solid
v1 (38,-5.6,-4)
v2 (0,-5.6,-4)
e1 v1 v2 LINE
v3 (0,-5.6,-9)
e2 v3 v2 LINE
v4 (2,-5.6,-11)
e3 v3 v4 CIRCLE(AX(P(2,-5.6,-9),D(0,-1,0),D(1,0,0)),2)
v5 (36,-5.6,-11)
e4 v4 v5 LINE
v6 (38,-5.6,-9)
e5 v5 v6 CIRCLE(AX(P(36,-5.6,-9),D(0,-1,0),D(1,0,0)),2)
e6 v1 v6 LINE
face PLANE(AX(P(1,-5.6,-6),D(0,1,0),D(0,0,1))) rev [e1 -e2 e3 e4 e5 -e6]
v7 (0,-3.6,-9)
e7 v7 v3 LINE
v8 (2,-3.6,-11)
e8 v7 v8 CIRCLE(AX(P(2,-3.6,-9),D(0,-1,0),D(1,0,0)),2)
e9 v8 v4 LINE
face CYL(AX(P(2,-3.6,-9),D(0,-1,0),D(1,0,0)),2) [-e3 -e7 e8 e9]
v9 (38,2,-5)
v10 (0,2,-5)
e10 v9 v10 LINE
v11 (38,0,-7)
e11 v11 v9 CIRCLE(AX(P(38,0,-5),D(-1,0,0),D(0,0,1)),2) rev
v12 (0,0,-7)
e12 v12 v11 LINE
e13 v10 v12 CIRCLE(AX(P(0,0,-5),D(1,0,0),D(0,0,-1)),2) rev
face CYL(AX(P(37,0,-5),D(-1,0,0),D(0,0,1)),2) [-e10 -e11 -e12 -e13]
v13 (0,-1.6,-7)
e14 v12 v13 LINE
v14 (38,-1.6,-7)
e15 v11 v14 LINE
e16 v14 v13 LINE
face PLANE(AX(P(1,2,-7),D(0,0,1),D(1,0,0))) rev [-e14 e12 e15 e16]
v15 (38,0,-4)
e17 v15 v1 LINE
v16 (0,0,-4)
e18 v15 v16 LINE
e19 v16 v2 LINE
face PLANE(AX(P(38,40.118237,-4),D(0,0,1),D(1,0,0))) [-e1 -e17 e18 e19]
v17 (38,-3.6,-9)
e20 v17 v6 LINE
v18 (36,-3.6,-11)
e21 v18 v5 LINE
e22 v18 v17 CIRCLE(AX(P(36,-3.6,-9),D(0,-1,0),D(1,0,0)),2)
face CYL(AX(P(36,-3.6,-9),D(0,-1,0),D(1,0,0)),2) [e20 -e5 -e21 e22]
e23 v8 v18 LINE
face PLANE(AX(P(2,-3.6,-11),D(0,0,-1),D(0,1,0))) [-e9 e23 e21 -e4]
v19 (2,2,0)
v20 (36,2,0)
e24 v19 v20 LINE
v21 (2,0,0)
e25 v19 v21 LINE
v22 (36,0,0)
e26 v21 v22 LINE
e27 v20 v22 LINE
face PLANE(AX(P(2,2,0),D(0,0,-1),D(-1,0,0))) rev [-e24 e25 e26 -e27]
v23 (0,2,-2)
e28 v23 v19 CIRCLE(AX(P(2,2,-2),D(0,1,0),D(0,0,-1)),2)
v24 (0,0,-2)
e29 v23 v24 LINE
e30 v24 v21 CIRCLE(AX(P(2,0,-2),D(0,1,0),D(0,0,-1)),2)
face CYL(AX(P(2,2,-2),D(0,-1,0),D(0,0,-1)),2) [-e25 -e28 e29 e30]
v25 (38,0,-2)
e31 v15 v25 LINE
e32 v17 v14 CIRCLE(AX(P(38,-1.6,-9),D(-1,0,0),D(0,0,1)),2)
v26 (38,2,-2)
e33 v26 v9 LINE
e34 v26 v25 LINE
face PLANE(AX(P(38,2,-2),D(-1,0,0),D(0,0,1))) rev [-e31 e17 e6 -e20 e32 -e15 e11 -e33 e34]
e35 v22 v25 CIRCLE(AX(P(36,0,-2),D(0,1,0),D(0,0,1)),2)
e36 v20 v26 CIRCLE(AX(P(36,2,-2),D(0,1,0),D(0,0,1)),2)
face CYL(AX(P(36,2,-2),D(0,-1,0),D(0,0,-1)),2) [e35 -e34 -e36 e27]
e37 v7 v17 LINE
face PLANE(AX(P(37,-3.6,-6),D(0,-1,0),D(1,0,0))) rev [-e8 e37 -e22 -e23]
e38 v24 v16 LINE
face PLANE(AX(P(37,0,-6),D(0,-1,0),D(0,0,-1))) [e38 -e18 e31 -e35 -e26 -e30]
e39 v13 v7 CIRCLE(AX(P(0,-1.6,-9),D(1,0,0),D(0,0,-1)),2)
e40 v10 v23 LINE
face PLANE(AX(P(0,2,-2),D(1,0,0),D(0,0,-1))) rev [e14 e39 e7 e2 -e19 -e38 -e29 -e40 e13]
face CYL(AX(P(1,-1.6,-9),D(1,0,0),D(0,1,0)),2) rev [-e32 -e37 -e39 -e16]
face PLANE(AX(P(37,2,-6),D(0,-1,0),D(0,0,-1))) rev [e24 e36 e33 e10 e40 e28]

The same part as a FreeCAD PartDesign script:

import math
import FreeCAD as App
import Part
import Sketcher
from FreeCAD import Vector
Q = App.Units.Quantity


def edges_at(feature, points):
    """Names of the edges that pass closest to the given points."""
    edges = feature.Shape.Edges
    near = lambda p: min(range(len(edges)), key=lambda i: edges[i].distToShape(Part.Vertex(*p))[0])
    return sorted({f"Edge{near(p) + 1}" for p in points})

doc = App.newDocument("Part")
body = doc.addObject("PartDesign::Body", "Body")

# Sketch on XZ plane
sketch1 = doc.addObject("Sketcher::SketchObject", "Sketch")
body.addObject(sketch1)
sketch1.AttachmentSupport = (doc.XZ_Plane, [""])
sketch1.MapMode = "FlatFace"
sketch1.addGeometry([
    Part.LineSegment(Vector(2, 0, 0), Vector(36, 0, 0)),  # 0
    Part.ArcOfCircle(Part.Circle(Vector(36, -2, 0), Vector(0, 0, 1), 2), math.radians(0), math.radians(90)),  # 1
    Part.LineSegment(Vector(38, -2, 0), Vector(38, -6, 0)),  # 2
    Part.ArcOfCircle(Part.Circle(Vector(37, -6, 0), Vector(0, 0, 1), 1), math.radians(-90), math.radians(0)),  # 3
    Part.LineSegment(Vector(37, -7, 0), Vector(1, -7, 0)),  # 4
    Part.ArcOfCircle(Part.Circle(Vector(1, -6, 0), Vector(0, 0, 1), 1), math.radians(-180), math.radians(-90)),  # 5
    Part.LineSegment(Vector(0, -6, 0), Vector(0, -2, 0)),  # 6
    Part.ArcOfCircle(Part.Circle(Vector(2, -2, 0), Vector(0, 0, 1), 2), math.radians(90), math.radians(180)),  # 7
], False)
sketch1.addConstraint([
    Sketcher.Constraint("Tangent", 0, 2, 1, 2),
    Sketcher.Constraint("Tangent", 1, 1, 2, 1),
    Sketcher.Constraint("Tangent", 2, 2, 3, 2),
    Sketcher.Constraint("Tangent", 3, 1, 4, 1),
    Sketcher.Constraint("Tangent", 4, 2, 5, 2),
    Sketcher.Constraint("Tangent", 5, 1, 6, 1),
    Sketcher.Constraint("Tangent", 6, 2, 7, 2),
    Sketcher.Constraint("Tangent", 7, 1, 0, 1),
    Sketcher.Constraint("Horizontal", 0),
    Sketcher.Constraint("Vertical", 2),
    Sketcher.Constraint("Horizontal", 4),
    Sketcher.Constraint("Vertical", 6),
    Sketcher.Constraint("Equal", 3, 5),
    Sketcher.Constraint("Equal", 1, 7),
    Sketcher.Constraint("PointOnObject", 0, 2, -1),
    Sketcher.Constraint("PointOnObject", 5, 1, -2),
    Sketcher.Constraint("Radius", 1, Q("2 mm")),
    Sketcher.Constraint("Radius", 3, Q("1 mm")),
    Sketcher.Constraint("DistanceX", 0, 1, 0, 2, Q("34 mm")),
    Sketcher.Constraint("DistanceY", 2, 2, 2, 1, Q("4 mm")),
])
pad1 = doc.addObject("PartDesign::Pad", "Pad")
body.addObject(pad1)
pad1.Profile = sketch1
pad1.Length = 2
pad1.Reversed = True

# Sketch on XZ plane
sketch2 = doc.addObject("Sketcher::SketchObject", "Sketch001")
body.addObject(sketch2)
sketch2.AttachmentSupport = (doc.XZ_Plane, [""])
sketch2.MapMode = "FlatFace"
sketch2.AttachmentOffset = App.Placement(Vector(0, 0, 5.6), App.Rotation())
sketch2.addGeometry([
    Part.LineSegment(Vector(38, -2, 0), Vector(38, -6, 0)),  # 0
    Part.ArcOfCircle(Part.Circle(Vector(37, -6, 0), Vector(0, 0, 1), 1), math.radians(-90), math.radians(0)),  # 1
    Part.LineSegment(Vector(37, -7, 0), Vector(1, -7, 0)),  # 2
    Part.ArcOfCircle(Part.Circle(Vector(1, -6, 0), Vector(0, 0, 1), 1), math.radians(-180), math.radians(-90)),  # 3
    Part.LineSegment(Vector(0, -6, 0), Vector(0, -2, 0)),  # 4
    Part.ArcOfCircle(Part.Circle(Vector(2, -2, 0), Vector(0, 0, 1), 2), math.radians(127), math.radians(180)),  # 5
    Part.LineSegment(Vector(0.8, -0.4, 0), Vector(0.8, -5.3, 0)),  # 6
    Part.ArcOfCircle(Part.Circle(Vector(1.3, -5.3, 0), Vector(0, 0, 1), 0.5), math.radians(180), math.radians(270)),  # 7
    Part.LineSegment(Vector(1.3, -5.8, 0), Vector(36.7, -5.8, 0)),  # 8
    Part.ArcOfCircle(Part.Circle(Vector(36.7, -5.3, 0), Vector(0, 0, 1), 0.5), math.radians(-90), math.radians(0)),  # 9
    Part.LineSegment(Vector(37.2, -5.3, 0), Vector(37.2, -0.4, 0)),  # 10
    Part.ArcOfCircle(Part.Circle(Vector(36, -2, 0), Vector(0, 0, 1), 2), math.radians(0), math.radians(53)),  # 11
], False)
sketch2.addConstraint([
    Sketcher.Constraint("Tangent", 0, 2, 1, 2),
    Sketcher.Constraint("Tangent", 1, 1, 2, 1),
    Sketcher.Constraint("Tangent", 2, 2, 3, 2),
    Sketcher.Constraint("Tangent", 3, 1, 4, 1),
    Sketcher.Constraint("Tangent", 4, 2, 5, 2),
    Sketcher.Constraint("Coincident", 5, 1, 6, 1),
    Sketcher.Constraint("Tangent", 6, 2, 7, 1),
    Sketcher.Constraint("Tangent", 7, 2, 8, 1),
    Sketcher.Constraint("Tangent", 8, 2, 9, 1),
    Sketcher.Constraint("Tangent", 9, 2, 10, 1),
    Sketcher.Constraint("Coincident", 10, 2, 11, 2),
    Sketcher.Constraint("Tangent", 11, 1, 0, 1),
    Sketcher.Constraint("Vertical", 0),
    Sketcher.Constraint("Horizontal", 2),
    Sketcher.Constraint("Vertical", 4),
    Sketcher.Constraint("Vertical", 6),
    Sketcher.Constraint("Horizontal", 8),
    Sketcher.Constraint("Vertical", 10),
    Sketcher.Constraint("Equal", 1, 3),
    Sketcher.Constraint("Equal", 7, 9),
    Sketcher.Constraint("Equal", 5, 11),
    Sketcher.Constraint("PointOnObject", 3, 1, -2),
    Sketcher.Constraint("Horizontal", 5, 3, 11, 3),
    Sketcher.Constraint("Horizontal", 5, 1, 10, 2),
    Sketcher.Constraint("Radius", 1, Q("1 mm")),
    Sketcher.Constraint("Radius", 5, Q("2 mm")),
    Sketcher.Constraint("Radius", 7, Q("0.5 mm")),
    Sketcher.Constraint("DistanceX", 2, 2, 2, 1, Q("36 mm")),
    Sketcher.Constraint("DistanceY", 0, 2, 0, 1, Q("4 mm")),
    Sketcher.Constraint("DistanceX", 8, 1, 8, 2, Q("35.4 mm")),
    Sketcher.Constraint("DistanceY", 6, 2, 6, 1, Q("4.9 mm")),
    Sketcher.Constraint("DistanceY", 1, 3, -1, 1, Q("6 mm")),
])
pad2 = doc.addObject("PartDesign::Pad", "Pad001")
body.addObject(pad2)
pad2.Profile = sketch2
pad2.Length = 7.6
pad2.Reversed = True

# Sketch on XZ plane
sketch3 = doc.addObject("Sketcher::SketchObject", "Sketch002")
body.addObject(sketch3)
sketch3.AttachmentSupport = (doc.XZ_Plane, [""])
sketch3.MapMode = "FlatFace"
sketch3.AttachmentOffset = App.Placement(Vector(0, 0, 5.6), App.Rotation())
sketch3.addGeometry([
    Part.LineSegment(Vector(37, -7, 0), Vector(1, -7, 0)),  # 0
    Part.ArcOfCircle(Part.Circle(Vector(1, -6, 0), Vector(0, 0, 1), 1), math.radians(-180), math.radians(-90)),  # 1
    Part.LineSegment(Vector(0, -6, 0), Vector(0, -9, 0)),  # 2
    Part.ArcOfCircle(Part.Circle(Vector(2, -9, 0), Vector(0, 0, 1), 2), math.radians(-180), math.radians(-90)),  # 3
    Part.LineSegment(Vector(2, -11, 0), Vector(36, -11, 0)),  # 4
    Part.ArcOfCircle(Part.Circle(Vector(36, -9, 0), Vector(0, 0, 1), 2), math.radians(-90), math.radians(0)),  # 5
    Part.LineSegment(Vector(38, -9, 0), Vector(38, -6, 0)),  # 6
    Part.ArcOfCircle(Part.Circle(Vector(37, -6, 0), Vector(0, 0, 1), 1), math.radians(-90), math.radians(0)),  # 7
], False)
sketch3.addConstraint([
    Sketcher.Constraint("Tangent", 0, 2, 1, 2),
    Sketcher.Constraint("Tangent", 1, 1, 2, 1),
    Sketcher.Constraint("Tangent", 2, 2, 3, 1),
    Sketcher.Constraint("Tangent", 3, 2, 4, 1),
    Sketcher.Constraint("Tangent", 4, 2, 5, 1),
    Sketcher.Constraint("Tangent", 5, 2, 6, 1),
    Sketcher.Constraint("Tangent", 6, 2, 7, 2),
    Sketcher.Constraint("Tangent", 7, 1, 0, 1),
    Sketcher.Constraint("Horizontal", 0),
    Sketcher.Constraint("Vertical", 2),
    Sketcher.Constraint("Horizontal", 4),
    Sketcher.Constraint("Vertical", 6),
    Sketcher.Constraint("Equal", 3, 5),
    Sketcher.Constraint("Equal", 1, 7),
    Sketcher.Constraint("PointOnObject", 1, 1, -2),
    Sketcher.Constraint("Radius", 1, Q("1 mm")),
    Sketcher.Constraint("Radius", 3, Q("2 mm")),
    Sketcher.Constraint("DistanceX", 0, 2, 0, 1, Q("36 mm")),
    Sketcher.Constraint("DistanceY", 2, 2, 2, 1, Q("3 mm")),
    Sketcher.Constraint("DistanceY", 1, 3, -1, 1, Q("6 mm")),
])
pad3 = doc.addObject("PartDesign::Pad", "Pad002")
body.addObject(pad3)
pad3.Profile = sketch3
pad3.Length = 2
pad3.Reversed = True

# Sketch on XZ plane
sketch4 = doc.addObject("Sketcher::SketchObject", "Sketch003")
body.addObject(sketch4)
sketch4.AttachmentSupport = (doc.XZ_Plane, [""])
sketch4.MapMode = "FlatFace"
sketch4.addGeometry([
    Part.LineSegment(Vector(0, 0, 0), Vector(0, -6, 0)),
    Part.LineSegment(Vector(0, -6, 0), Vector(38, -6, 0)),
    Part.LineSegment(Vector(38, -6, 0), Vector(38, 0, 0)),
    Part.LineSegment(Vector(38, 0, 0), Vector(0, 0, 0)),
], False)
sketch4.addConstraint([
    Sketcher.Constraint("Coincident", 0, 2, 1, 1),
    Sketcher.Constraint("Coincident", 1, 2, 2, 1),
    Sketcher.Constraint("Coincident", 2, 2, 3, 1),
    Sketcher.Constraint("Coincident", 3, 2, 0, 1),
    Sketcher.Constraint("Vertical", 0),
    Sketcher.Constraint("Horizontal", 1),
    Sketcher.Constraint("Vertical", 2),
    Sketcher.Constraint("Horizontal", 3),
    Sketcher.Constraint("Coincident", 3, 2, -1, 1),
    Sketcher.Constraint("DistanceX", 1, 1, 1, 2, Q("38 mm")),
    Sketcher.Constraint("DistanceY", 0, 2, 0, 1, Q("5.8 mm")),
])
pocket1 = doc.addObject("PartDesign::Pocket", "Pocket")
body.addObject(pocket1)
pocket1.Profile = sketch4
pocket1.Type = "ThroughAll"
pocket1.Reversed = True

# Sketch on XZ plane
sketch5 = doc.addObject("Sketcher::SketchObject", "Sketch004")
body.addObject(sketch5)
sketch5.AttachmentSupport = (doc.XZ_Plane, [""])
sketch5.MapMode = "FlatFace"
sketch5.AttachmentOffset = App.Placement(Vector(0, 0, 5.6), App.Rotation())
sketch5.addGeometry([
    Part.LineSegment(Vector(0, -4, 0), Vector(0, -7, 0)),
    Part.LineSegment(Vector(0, -7, 0), Vector(38, -7, 0)),
    Part.LineSegment(Vector(38, -7, 0), Vector(38, -4, 0)),
    Part.LineSegment(Vector(38, -4, 0), Vector(0, -4, 0)),
], False)
sketch5.addConstraint([
    Sketcher.Constraint("Coincident", 0, 2, 1, 1),
    Sketcher.Constraint("Coincident", 1, 2, 2, 1),
    Sketcher.Constraint("Coincident", 2, 2, 3, 1),
    Sketcher.Constraint("Coincident", 3, 2, 0, 1),
    Sketcher.Constraint("Vertical", 0),
    Sketcher.Constraint("Horizontal", 1),
    Sketcher.Constraint("Vertical", 2),
    Sketcher.Constraint("Horizontal", 3),
    Sketcher.Constraint("PointOnObject", 0, 2, -2),
    Sketcher.Constraint("DistanceX", 1, 1, 1, 2, Q("38 mm")),
    Sketcher.Constraint("DistanceY", 0, 2, 0, 1, Q("3 mm")),
    Sketcher.Constraint("DistanceY", 0, 2, -1, 1, Q("7 mm")),
])
pad4 = doc.addObject("PartDesign::Pad", "Pad003")
body.addObject(pad4)
pad4.Profile = sketch5
pad4.Length = 7.6
pad4.Reversed = True
doc.recompute()

fillet = doc.addObject("PartDesign::Fillet", "Fillet")
body.addObject(fillet)
fillet.Base = (pad4, edges_at(pad4, [(19, 2, -7), (19, -3.6, -7)]))
fillet.Radius = 2

doc.recompute()
